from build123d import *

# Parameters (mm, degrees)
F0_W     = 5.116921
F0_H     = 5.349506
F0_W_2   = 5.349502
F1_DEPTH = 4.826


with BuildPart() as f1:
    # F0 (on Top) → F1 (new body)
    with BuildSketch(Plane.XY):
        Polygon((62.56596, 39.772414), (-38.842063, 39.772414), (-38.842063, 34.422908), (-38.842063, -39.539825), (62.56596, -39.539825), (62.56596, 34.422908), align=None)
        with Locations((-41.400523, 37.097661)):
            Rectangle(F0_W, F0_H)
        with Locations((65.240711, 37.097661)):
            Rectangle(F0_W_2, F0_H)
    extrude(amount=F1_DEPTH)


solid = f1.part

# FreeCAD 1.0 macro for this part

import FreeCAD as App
import Part
import Sketcher
Q = App.Units.Quantity

doc = App.newDocument("Part")
body = doc.addObject("PartDesign::Body", "Body")

sketch1 = body.newObject("Sketcher::SketchObject", "Sketch")
sketch1.AttachmentSupport = (doc.getObject("XY_Plane"), [""])
sketch1.MapMode = "FlatFace"
sketch1.addGeometry([
    Part.LineSegment(App.Vector(63, -40, 0), App.Vector(63, 34, 0)),
    Part.LineSegment(App.Vector(63, 34, 0), App.Vector(68, 34, 0)),
    Part.LineSegment(App.Vector(68, 34, 0), App.Vector(68, 40, 0)),
    Part.LineSegment(App.Vector(68, 40, 0), App.Vector(-44, 40, 0)),
    Part.LineSegment(App.Vector(-44, 40, 0), App.Vector(-44, 34, 0)),
    Part.LineSegment(App.Vector(-44, 34, 0), App.Vector(-39, 34, 0)),
    Part.LineSegment(App.Vector(-39, 34, 0), App.Vector(-39, -40, 0)),
    Part.LineSegment(App.Vector(-39, -40, 0), App.Vector(63, -40, 0)),
], False)
sketch1.addConstraint([
    Sketcher.Constraint("Coincident", 0, 2, 1, 1),
    Sketcher.Constraint("Coincident", 1, 2, 2, 1),
    Sketcher.Constraint("Coincident", 2, 2, 3, 1),
    Sketcher.Constraint("Coincident", 3, 2, 4, 1),
    Sketcher.Constraint("Coincident", 4, 2, 5, 1),
    Sketcher.Constraint("Coincident", 5, 2, 6, 1),
    Sketcher.Constraint("Coincident", 6, 2, 7, 1),
    Sketcher.Constraint("Coincident", 7, 2, 0, 1),
    Sketcher.Constraint("Vertical", 0),
    Sketcher.Constraint("Horizontal", 1),
    Sketcher.Constraint("Vertical", 2),
    Sketcher.Constraint("Horizontal", 3),
    Sketcher.Constraint("Vertical", 4),
    Sketcher.Constraint("Horizontal", 5),
    Sketcher.Constraint("Vertical", 6),
    Sketcher.Constraint("Horizontal", 7),
    Sketcher.Constraint("Horizontal", 1, 2, 4, 2),
    Sketcher.Constraint("DistanceX", 5, 1, 5, 2, 5.11692),
    Sketcher.Constraint("DistanceX", 1, 1, 1, 2, 5.349502),
    Sketcher.Constraint("DistanceX", 3, 2, 3, 1, 111.874446),
    Sketcher.Constraint("DistanceY", 0, 1, 0, 2, 73.962733),
    Sketcher.Constraint("DistanceY", 2, 1, 2, 2, 5.349506),
    Sketcher.Constraint("DistanceX", -1, 1, 0, 2, 62.56596),
    Sketcher.Constraint("DistanceY", -1, 1, 0, 2, 34.422908),
])
pad1 = body.newObject("PartDesign::Pad", "Pad")
pad1.Profile = sketch1
pad1.Length = Q("0.19 in")

doc.recompute()
